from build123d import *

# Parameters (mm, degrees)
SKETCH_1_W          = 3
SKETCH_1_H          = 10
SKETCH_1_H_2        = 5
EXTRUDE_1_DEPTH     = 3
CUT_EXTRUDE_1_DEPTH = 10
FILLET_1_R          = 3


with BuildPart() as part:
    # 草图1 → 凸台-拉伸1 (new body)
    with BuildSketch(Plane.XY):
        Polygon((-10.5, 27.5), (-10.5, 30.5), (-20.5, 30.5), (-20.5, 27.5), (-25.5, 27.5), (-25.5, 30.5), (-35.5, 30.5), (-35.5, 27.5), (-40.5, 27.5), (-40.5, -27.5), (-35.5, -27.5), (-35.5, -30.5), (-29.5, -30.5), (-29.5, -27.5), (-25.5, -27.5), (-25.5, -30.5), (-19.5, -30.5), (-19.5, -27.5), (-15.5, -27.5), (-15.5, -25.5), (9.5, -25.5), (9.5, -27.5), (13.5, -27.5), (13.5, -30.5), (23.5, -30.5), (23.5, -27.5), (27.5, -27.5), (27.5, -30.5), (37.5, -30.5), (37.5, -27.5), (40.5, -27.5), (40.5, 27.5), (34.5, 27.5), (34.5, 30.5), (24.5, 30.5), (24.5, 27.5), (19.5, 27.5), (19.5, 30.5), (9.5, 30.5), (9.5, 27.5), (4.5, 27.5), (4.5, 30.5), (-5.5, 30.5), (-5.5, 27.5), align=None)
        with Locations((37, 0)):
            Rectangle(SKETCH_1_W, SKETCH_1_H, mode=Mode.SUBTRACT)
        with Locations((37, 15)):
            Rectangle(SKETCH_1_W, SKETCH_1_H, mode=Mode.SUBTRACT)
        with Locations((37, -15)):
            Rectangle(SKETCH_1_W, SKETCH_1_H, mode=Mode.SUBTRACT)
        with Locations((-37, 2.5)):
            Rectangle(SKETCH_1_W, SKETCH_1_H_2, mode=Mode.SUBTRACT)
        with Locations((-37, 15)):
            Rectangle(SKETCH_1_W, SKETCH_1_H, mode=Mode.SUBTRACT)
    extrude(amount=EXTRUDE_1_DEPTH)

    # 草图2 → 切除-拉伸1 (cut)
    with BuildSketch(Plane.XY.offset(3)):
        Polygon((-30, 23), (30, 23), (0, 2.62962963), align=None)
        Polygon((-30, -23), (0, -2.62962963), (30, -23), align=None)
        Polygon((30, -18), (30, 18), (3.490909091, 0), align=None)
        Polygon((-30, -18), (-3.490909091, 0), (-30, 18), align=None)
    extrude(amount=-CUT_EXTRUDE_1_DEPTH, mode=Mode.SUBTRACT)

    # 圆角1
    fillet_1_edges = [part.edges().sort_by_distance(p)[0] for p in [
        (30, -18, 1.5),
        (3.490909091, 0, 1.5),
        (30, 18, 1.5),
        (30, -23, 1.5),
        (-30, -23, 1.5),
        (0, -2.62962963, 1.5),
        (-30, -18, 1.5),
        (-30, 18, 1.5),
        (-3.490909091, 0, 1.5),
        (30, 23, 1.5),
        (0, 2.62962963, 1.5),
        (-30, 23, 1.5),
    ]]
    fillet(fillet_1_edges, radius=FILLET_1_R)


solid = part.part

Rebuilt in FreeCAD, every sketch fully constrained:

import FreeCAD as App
import Part
import Sketcher

V = App.Vector


def edges_at(feature, points):
    """Names of the edges that pass closest to the given points."""
    edges = feature.Shape.Edges
    near = lambda p: min(range(len(edges)), key=lambda i: edges[i].distToShape(Part.Vertex(*p))[0])
    return sorted({f"Edge{near(p) + 1}" for p in points})


def add_polygon(sketch, points):
    """Adds a closed chain of lines whose ends are joined by coincident constraints."""
    first, n = sketch.GeometryCount, len(points)
    for a, b in zip(points, points[1:] + points[:1]):
        sketch.addGeometry(Part.LineSegment(App.Vector(*a, 0), App.Vector(*b, 0)), False)
    for i in range(n):
        sketch.addConstraint(Sketcher.Constraint("Coincident", first + i, 2, first + (i + 1) % n, 1))

doc = App.newDocument("Part")
body = doc.addObject("PartDesign::Body", "Body")

sketch1 = body.newObject("Sketcher::SketchObject", "Sketch")
sketch1.AttachmentSupport = (doc.getObject("XY_Plane"), [""])
sketch1.MapMode = "FlatFace"
add_polygon(sketch1, [(-10.5, 27.5), (-10.5, 30.5), (-20.5, 30.5), (-20.5, 27.5), (-25.5, 27.5), (-25.5, 30.5), (-35.5, 30.5), (-35.5, 27.5), (-40.5, 27.5), (-40.5, -27.5), (-35.5, -27.5), (-35.5, -30.5), (-29.5, -30.5), (-29.5, -27.5), (-25.5, -27.5), (-25.5, -30.5), (-19.5, -30.5), (-19.5, -27.5), (-15.5, -27.5), (-15.5, -25.5), (9.5, -25.5), (9.5, -27.5), (13.5, -27.5), (13.5, -30.5), (23.5, -30.5), (23.5, -27.5), (27.5, -27.5), (27.5, -30.5), (37.5, -30.5), (37.5, -27.5), (40.5, -27.5), (40.5, 27.5), (34.5, 27.5), (34.5, 30.5), (24.5, 30.5), (24.5, 27.5), (19.5, 27.5), (19.5, 30.5), (9.5, 30.5), (9.5, 27.5), (4.5, 27.5), (4.5, 30.5), (-5.5, 30.5), (-5.5, 27.5)])
add_polygon(sketch1, [(38.5, -20), (35.5, -20), (35.5, -10), (38.5, -10)])
add_polygon(sketch1, [(-35.5, 0), (-38.5, 0), (-38.5, 5), (-35.5, 5)])
add_polygon(sketch1, [(-35.5, 10), (-38.5, 10), (-38.5, 20), (-35.5, 20)])
add_polygon(sketch1, [(38.5, -5), (35.5, -5), (35.5, 5), (38.5, 5)])
add_polygon(sketch1, [(38.5, 10), (35.5, 10), (35.5, 20), (38.5, 20)])
sketch1.addConstraint(Sketcher.Constraint("Vertical", 0))
sketch1.addConstraint(Sketcher.Constraint("Horizontal", 1))
sketch1.addConstraint(Sketcher.Constraint("Vertical", 2))
sketch1.addConstraint(Sketcher.Constraint("Horizontal", 3))
sketch1.addConstraint(Sketcher.Constraint("Vertical", 4))
sketch1.addConstraint(Sketcher.Constraint("Horizontal", 5))
sketch1.addConstraint(Sketcher.Constraint("Vertical", 6))
sketch1.addConstraint(Sketcher.Constraint("Horizontal", 7))
sketch1.addConstraint(Sketcher.Constraint("Vertical", 8))
sketch1.addConstraint(Sketcher.Constraint("Horizontal", 9))
sketch1.addConstraint(Sketcher.Constraint("Vertical", 10))
sketch1.addConstraint(Sketcher.Constraint("Horizontal", 11))
sketch1.addConstraint(Sketcher.Constraint("Vertical", 12))
sketch1.addConstraint(Sketcher.Constraint("Horizontal", 13))
sketch1.addConstraint(Sketcher.Constraint("Vertical", 14))
sketch1.addConstraint(Sketcher.Constraint("Horizontal", 15))
sketch1.addConstraint(Sketcher.Constraint("Vertical", 16))
sketch1.addConstraint(Sketcher.Constraint("Horizontal", 17))
sketch1.addConstraint(Sketcher.Constraint("Vertical", 18))
sketch1.addConstraint(Sketcher.Constraint("Horizontal", 19))
sketch1.addConstraint(Sketcher.Constraint("Vertical", 20))
sketch1.addConstraint(Sketcher.Constraint("Horizontal", 21))
sketch1.addConstraint(Sketcher.Constraint("Vertical", 22))
sketch1.addConstraint(Sketcher.Constraint("Horizontal", 23))
sketch1.addConstraint(Sketcher.Constraint("Vertical", 24))
sketch1.addConstraint(Sketcher.Constraint("Horizontal", 25))
sketch1.addConstraint(Sketcher.Constraint("Vertical", 26))
sketch1.addConstraint(Sketcher.Constraint("Horizontal", 27))
sketch1.addConstraint(Sketcher.Constraint("Vertical", 28))
sketch1.addConstraint(Sketcher.Constraint("Horizontal", 29))
sketch1.addConstraint(Sketcher.Constraint("Vertical", 30))
sketch1.addConstraint(Sketcher.Constraint("Horizontal", 31))
sketch1.addConstraint(Sketcher.Constraint("Vertical", 32))
sketch1.addConstraint(Sketcher.Constraint("Horizontal", 33))
sketch1.addConstraint(Sketcher.Constraint("Vertical", 34))
sketch1.addConstraint(Sketcher.Constraint("Horizontal", 35))
sketch1.addConstraint(Sketcher.Constraint("Vertical", 36))
sketch1.addConstraint(Sketcher.Constraint("Horizontal", 37))
sketch1.addConstraint(Sketcher.Constraint("Vertical", 38))
sketch1.addConstraint(Sketcher.Constraint("Horizontal", 39))
sketch1.addConstraint(Sketcher.Constraint("Vertical", 40))
sketch1.addConstraint(Sketcher.Constraint("Horizontal", 41))
sketch1.addConstraint(Sketcher.Constraint("Vertical", 42))
sketch1.addConstraint(Sketcher.Constraint("Horizontal", 43))
sketch1.addConstraint(Sketcher.Constraint("Horizontal", 44))
sketch1.addConstraint(Sketcher.Constraint("Vertical", 45))
sketch1.addConstraint(Sketcher.Constraint("Horizontal", 46))
sketch1.addConstraint(Sketcher.Constraint("Vertical", 47))
sketch1.addConstraint(Sketcher.Constraint("Horizontal", 48))
sketch1.addConstraint(Sketcher.Constraint("Vertical", 49))
sketch1.addConstraint(Sketcher.Constraint("Horizontal", 50))
sketch1.addConstraint(Sketcher.Constraint("Vertical", 51))
sketch1.addConstraint(Sketcher.Constraint("Horizontal", 52))
sketch1.addConstraint(Sketcher.Constraint("Vertical", 53))
sketch1.addConstraint(Sketcher.Constraint("Horizontal", 54))
sketch1.addConstraint(Sketcher.Constraint("Vertical", 55))
sketch1.addConstraint(Sketcher.Constraint("Horizontal", 56))
sketch1.addConstraint(Sketcher.Constraint("Vertical", 57))
sketch1.addConstraint(Sketcher.Constraint("Horizontal", 58))
sketch1.addConstraint(Sketcher.Constraint("Vertical", 59))
sketch1.addConstraint(Sketcher.Constraint("Horizontal", 60))
sketch1.addConstraint(Sketcher.Constraint("Vertical", 61))
sketch1.addConstraint(Sketcher.Constraint("Horizontal", 62))
sketch1.addConstraint(Sketcher.Constraint("Vertical", 63))
sketch1.addConstraint(Sketcher.Constraint("Symmetric", 7, 2, 29, 2, -1, 1))
sketch1.addConstraint(Sketcher.Constraint("Symmetric", 16, 2, 35, 2, -1, 1))
sketch1.addConstraint(Sketcher.Constraint("Symmetric", 46, 2, 52, 2, -1, 1))
sketch1.addConstraint(Sketcher.Constraint("Symmetric", 44, 2, 54, 2, -1, 1))
sketch1.addConstraint(Sketcher.Constraint("Symmetric", 50, 2, 56, 2, -1, 1))
sketch1.addConstraint(Sketcher.Constraint("Symmetric", 49, 2, 58, 2, -2))
sketch1.addConstraint(Sketcher.Constraint("Symmetric", 55, 2, 60, 2, -2))
sketch1.addConstraint(Sketcher.Constraint("Symmetric", 53, 2, 62, 2, -2))
sketch1.addConstraint(Sketcher.Constraint("Symmetric", 6, 2, 9, 2, -1))
sketch1.addConstraint(Sketcher.Constraint("Symmetric", 3, 2, 13, 2, -1))
sketch1.addConstraint(Sketcher.Constraint("Symmetric", 20, 2, 38, 2, -1))
sketch1.addConstraint(Sketcher.Constraint("PointOnObject", 48, 2, -1))
sketch1.addConstraint(Sketcher.Constraint("Horizontal", 1, 2, 4, 2))
sketch1.addConstraint(Sketcher.Constraint("Horizontal", 3, 2, 6, 2))
sketch1.addConstraint(Sketcher.Constraint("Horizontal", 11, 2, 14, 2))
sketch1.addConstraint(Sketcher.Constraint("Horizontal", 13, 2, 16, 2))
sketch1.addConstraint(Sketcher.Constraint("Horizontal", 17, 2, 20, 2))
sketch1.addConstraint(Sketcher.Constraint("Horizontal", 15, 2, 22, 2))
sketch1.addConstraint(Sketcher.Constraint("Horizontal", 21, 2, 24, 2))
sketch1.addConstraint(Sketcher.Constraint("Horizontal", 23, 2, 26, 2))
sketch1.addConstraint(Sketcher.Constraint("Horizontal", 7, 2, 30, 2))
sketch1.addConstraint(Sketcher.Constraint("Horizontal", 5, 2, 32, 2))
sketch1.addConstraint(Sketcher.Constraint("Horizontal", 33, 2, 36, 2))
sketch1.addConstraint(Sketcher.Constraint("Horizontal", 37, 2, 40, 2))
sketch1.addConstraint(Sketcher.Constraint("Horizontal", 39, 2, 42, 2))
sketch1.addConstraint(Sketcher.Constraint("Vertical", 10, 2, 50, 2))
sketch1.addConstraint(Sketcher.Constraint("Vertical", 49, 2, 52, 2))
sketch1.addConstraint(Sketcher.Constraint("Vertical", 51, 2, 54, 2))
sketch1.addConstraint(Sketcher.Constraint("Equal", 1, 5))
sketch1.addConstraint(Sketcher.Constraint("Equal", 3, 7))
sketch1.addConstraint(Sketcher.Constraint("Equal", 11, 15))
sketch1.addConstraint(Sketcher.Constraint("Equal", 13, 17))
sketch1.addConstraint(Sketcher.Constraint("Equal", 17, 21))
sketch1.addConstraint(Sketcher.Constraint("Equal", 5, 23))
sketch1.addConstraint(Sketcher.Constraint("Equal", 21, 25))
sketch1.addConstraint(Sketcher.Constraint("Equal", 23, 27))
sketch1.addConstraint(Sketcher.Constraint("Equal", 15, 31))
sketch1.addConstraint(Sketcher.Constraint("Equal", 27, 33))
sketch1.addConstraint(Sketcher.Constraint("Equal", 33, 37))
sketch1.addConstraint(Sketcher.Constraint("Equal", 35, 39))
sketch1.addConstraint(Sketcher.Constraint("Equal", 37, 41))
sketch1.addConstraint(Sketcher.Constraint("Equal", 39, 43))
sketch1.addConstraint(Sketcher.Constraint("Equal", 29, 44))
sketch1.addConstraint(Sketcher.Constraint("Equal", 62, 0))
sketch1.addConstraint(Sketcher.Constraint("Equal", 6, 10))
sketch1.addConstraint(Sketcher.Constraint("Equal", 41, 45))
sketch1.addConstraint(Sketcher.Constraint("Equal", 43, 49))
sketch1.addConstraint(Sketcher.Constraint("Equal", 55, 57))
sketch1.addConstraint(Sketcher.Constraint("DistanceX", 1, 2, 1, 1, 10.0))
sketch1.addConstraint(Sketcher.Constraint("DistanceX", 11, 1, 11, 2, 6.0))
sketch1.addConstraint(Sketcher.Constraint("DistanceY", 8, 2, 8, 1, 55.0))
sketch1.addConstraint(Sketcher.Constraint("DistanceY", 18, 1, 18, 2, 2.0))
sketch1.addConstraint(Sketcher.Constraint("DistanceY", 44, 2, -1, 1, 20.0))
pad1 = body.newObject("PartDesign::Pad", "Pad")
pad1.Profile = sketch1
pad1.Length = 3

sketch2 = body.newObject("Sketcher::SketchObject", "Sketch001")
sketch2.AttachmentSupport = (doc.getObject("XY_Plane"), [""])
sketch2.MapMode = "FlatFace"
sketch2.AttachmentOffset = App.Placement(V(0, 0, 3), App.Rotation())
add_polygon(sketch2, [(30, 23), (-30, 23), (0, 3)])
add_polygon(sketch2, [(0, -3), (-30, -23), (30, -23)])
add_polygon(sketch2, [(30, -18), (30, 18), (3, 0)])
add_polygon(sketch2, [(-30, -18), (-3, 0), (-30, 18)])
sketch2.addConstraint(Sketcher.Constraint("Horizontal", 0))
sketch2.addConstraint(Sketcher.Constraint("Horizontal", 4))
sketch2.addConstraint(Sketcher.Constraint("Vertical", 6))
sketch2.addConstraint(Sketcher.Constraint("Vertical", 11))
sketch2.addConstraint(Sketcher.Constraint("Symmetric", 2, 2, 3, 2, -1, 1))
sketch2.addConstraint(Sketcher.Constraint("Symmetric", 1, 2, 5, 2, -1, 1))
sketch2.addConstraint(Sketcher.Constraint("Symmetric", 7, 2, 9, 2, -1, 1))
sketch2.addConstraint(Sketcher.Constraint("Symmetric", 8, 2, 10, 2, -1, 1))
sketch2.addConstraint(Sketcher.Constraint("PointOnObject", 1, 2, -2))
sketch2.addConstraint(Sketcher.Constraint("PointOnObject", 7, 2, -1))
sketch2.addConstraint(Sketcher.Constraint("Parallel", 1, 5))
sketch2.addConstraint(Sketcher.Constraint("Parallel", 3, 7))
sketch2.addConstraint(Sketcher.Constraint("Parallel", 5, 8))
sketch2.addConstraint(Sketcher.Constraint("Parallel", 7, 9))
sketch2.addConstraint(Sketcher.Constraint("Horizontal", 6, 2, 10, 2))
sketch2.addConstraint(Sketcher.Constraint("Vertical", 4, 2, 6, 2))
sketch2.addConstraint(Sketcher.Constraint("DistanceX", 0, 2, 0, 1, 60.0))
sketch2.addConstraint(Sketcher.Constraint("DistanceY", 6, 1, 6, 2, 36.0))
sketch2.addConstraint(Sketcher.Constraint("DistanceY", -1, 1, 0, 2, 23.0))
sketch2.addConstraint(Sketcher.Constraint("DistanceY", -1, 1, 1, 2, 2.62963))
pocket1 = body.newObject("PartDesign::Pocket", "Pocket")
pocket1.Profile = sketch2
pocket1.Length = 10
doc.recompute()

fillet = body.newObject("PartDesign::Fillet", "Fillet")
fillet.Base = (pocket1, edges_at(pocket1, [
    (30, -18, 1.5),
    (3.491, 0, 1.5),
    (30, 18, 1.5),
    (30, -23, 1.5),
    (-30, -23, 1.5),
    (0, -2.63, 1.5),
    (-30, -18, 1.5),
    (-30, 18, 1.5),
    (-3.491, 0, 1.5),
    (30, 23, 1.5),
    (0, 2.63, 1.5),
    (-30, 23, 1.5),
]))
fillet.Radius = 3

doc.recompute()
